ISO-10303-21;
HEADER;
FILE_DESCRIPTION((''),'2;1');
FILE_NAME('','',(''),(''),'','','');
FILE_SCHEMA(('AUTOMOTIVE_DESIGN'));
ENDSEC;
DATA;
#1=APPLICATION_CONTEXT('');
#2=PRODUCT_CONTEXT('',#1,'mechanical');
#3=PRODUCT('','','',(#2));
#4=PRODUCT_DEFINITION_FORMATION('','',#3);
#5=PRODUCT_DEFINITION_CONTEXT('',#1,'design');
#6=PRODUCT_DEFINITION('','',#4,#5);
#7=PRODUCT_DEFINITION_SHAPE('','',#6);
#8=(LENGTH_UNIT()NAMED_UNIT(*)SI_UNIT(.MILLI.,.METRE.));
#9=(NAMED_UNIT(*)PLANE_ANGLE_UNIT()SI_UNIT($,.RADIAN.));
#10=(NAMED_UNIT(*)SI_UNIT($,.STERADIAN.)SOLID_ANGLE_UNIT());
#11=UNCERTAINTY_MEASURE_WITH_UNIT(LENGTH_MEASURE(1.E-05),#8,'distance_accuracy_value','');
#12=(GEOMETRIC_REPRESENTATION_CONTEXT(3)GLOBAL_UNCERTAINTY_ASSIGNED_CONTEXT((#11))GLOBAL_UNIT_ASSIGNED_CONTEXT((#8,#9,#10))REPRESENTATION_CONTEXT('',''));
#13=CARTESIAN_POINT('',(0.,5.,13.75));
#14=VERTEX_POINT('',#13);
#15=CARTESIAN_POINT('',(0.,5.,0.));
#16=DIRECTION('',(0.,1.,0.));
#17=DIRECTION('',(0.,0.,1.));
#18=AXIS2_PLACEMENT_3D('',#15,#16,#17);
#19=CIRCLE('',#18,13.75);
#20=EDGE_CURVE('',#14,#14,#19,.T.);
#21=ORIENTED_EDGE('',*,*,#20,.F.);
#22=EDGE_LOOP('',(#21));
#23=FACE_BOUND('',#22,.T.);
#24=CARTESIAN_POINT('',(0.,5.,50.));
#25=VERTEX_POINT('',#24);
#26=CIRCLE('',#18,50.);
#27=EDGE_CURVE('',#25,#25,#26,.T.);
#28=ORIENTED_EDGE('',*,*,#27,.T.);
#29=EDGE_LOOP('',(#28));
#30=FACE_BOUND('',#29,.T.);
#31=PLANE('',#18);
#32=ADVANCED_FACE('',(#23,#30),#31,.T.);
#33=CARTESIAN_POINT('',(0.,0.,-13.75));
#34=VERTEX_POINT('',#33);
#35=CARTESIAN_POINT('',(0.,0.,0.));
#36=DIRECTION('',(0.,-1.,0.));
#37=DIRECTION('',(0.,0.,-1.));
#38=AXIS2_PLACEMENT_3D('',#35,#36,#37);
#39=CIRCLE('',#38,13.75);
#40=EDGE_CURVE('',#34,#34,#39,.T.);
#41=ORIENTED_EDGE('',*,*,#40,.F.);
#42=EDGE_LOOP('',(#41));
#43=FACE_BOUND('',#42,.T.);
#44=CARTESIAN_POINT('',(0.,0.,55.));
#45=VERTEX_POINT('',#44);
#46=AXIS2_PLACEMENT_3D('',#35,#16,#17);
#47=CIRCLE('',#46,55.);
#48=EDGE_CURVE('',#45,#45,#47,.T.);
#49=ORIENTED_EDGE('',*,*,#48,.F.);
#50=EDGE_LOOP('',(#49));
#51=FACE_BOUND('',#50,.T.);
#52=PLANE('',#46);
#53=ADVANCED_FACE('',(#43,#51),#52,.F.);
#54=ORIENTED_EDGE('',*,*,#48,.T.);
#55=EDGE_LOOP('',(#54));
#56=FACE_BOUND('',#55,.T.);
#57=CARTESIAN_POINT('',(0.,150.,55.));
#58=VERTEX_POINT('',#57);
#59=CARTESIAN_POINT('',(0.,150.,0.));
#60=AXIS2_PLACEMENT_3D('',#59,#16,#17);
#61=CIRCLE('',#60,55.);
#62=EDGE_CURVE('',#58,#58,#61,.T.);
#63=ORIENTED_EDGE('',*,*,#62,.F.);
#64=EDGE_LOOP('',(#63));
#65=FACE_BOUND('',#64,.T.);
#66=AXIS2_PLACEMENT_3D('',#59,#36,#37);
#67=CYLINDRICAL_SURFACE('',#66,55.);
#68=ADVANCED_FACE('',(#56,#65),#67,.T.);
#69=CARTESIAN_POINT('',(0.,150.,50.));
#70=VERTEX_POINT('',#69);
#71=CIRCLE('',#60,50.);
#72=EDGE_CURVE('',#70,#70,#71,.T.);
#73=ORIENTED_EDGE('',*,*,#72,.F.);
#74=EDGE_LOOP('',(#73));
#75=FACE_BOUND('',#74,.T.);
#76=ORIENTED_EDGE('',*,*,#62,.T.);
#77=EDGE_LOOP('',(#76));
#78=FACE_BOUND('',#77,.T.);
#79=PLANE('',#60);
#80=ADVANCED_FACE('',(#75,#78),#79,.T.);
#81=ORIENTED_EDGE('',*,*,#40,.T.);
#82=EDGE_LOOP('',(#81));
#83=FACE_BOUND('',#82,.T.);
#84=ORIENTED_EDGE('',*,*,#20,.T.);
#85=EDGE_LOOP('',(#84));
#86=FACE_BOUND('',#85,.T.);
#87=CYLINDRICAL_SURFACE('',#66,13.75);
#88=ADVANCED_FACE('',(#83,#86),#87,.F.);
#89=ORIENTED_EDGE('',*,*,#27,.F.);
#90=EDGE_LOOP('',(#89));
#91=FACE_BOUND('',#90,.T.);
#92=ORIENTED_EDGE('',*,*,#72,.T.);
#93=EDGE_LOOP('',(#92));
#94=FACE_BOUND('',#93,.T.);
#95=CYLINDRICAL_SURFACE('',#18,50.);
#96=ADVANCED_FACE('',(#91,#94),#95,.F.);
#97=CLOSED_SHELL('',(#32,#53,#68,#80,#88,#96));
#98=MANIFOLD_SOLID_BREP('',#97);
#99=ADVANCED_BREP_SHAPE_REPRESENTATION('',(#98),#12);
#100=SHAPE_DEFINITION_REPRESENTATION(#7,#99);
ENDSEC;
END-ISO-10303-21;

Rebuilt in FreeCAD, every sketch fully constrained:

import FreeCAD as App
import Part
import Sketcher
Q = App.Units.Quantity

doc = App.newDocument("Part")
params = doc.addObject("Spreadsheet::Sheet", "Params")
for row, (alias, value) in enumerate([
    ("sketch1_diameter", "110 mm"),
    ("pad1_length", "150 mm"),
    ("sketch2_diameter", "100 mm"),
    ("pocket1_length", "145 mm"),
    ("sketch3_diameter", "27.5 mm"),
], start=1):
    params.set(f"A{row}", alias)
    params.set(f"B{row}", "=" + value)
    params.setAlias(f"B{row}", alias)

body = doc.addObject("PartDesign::Body", "Body")

# Sketch on XZ plane
sketch1 = doc.addObject("Sketcher::SketchObject", "Sketch")
body.addObject(sketch1)
sketch1.AttachmentSupport = (doc.XZ_Plane, [""])
sketch1.MapMode = "FlatFace"
sketch1.addGeometry(Part.Circle(App.Vector(0, 0, 0), App.Vector(0, 0, 1), 55), False)
sketch1.addConstraint(Sketcher.Constraint("Coincident", 0, 3, -1, 1))
sketch1.addConstraint(Sketcher.Constraint("Diameter", 0, Q("110 mm")))
sketch1.setExpression("Constraints[1]", "Params.sketch1_diameter")
pad1 = doc.addObject("PartDesign::Pad", "Pad")
body.addObject(pad1)
pad1.Profile = sketch1
pad1.setExpression("Length", "Params.pad1_length")
pad1.Reversed = True

# Sketch on XZ plane
sketch2 = doc.addObject("Sketcher::SketchObject", "Sketch001")
body.addObject(sketch2)
sketch2.AttachmentSupport = (doc.XZ_Plane, [""])
sketch2.MapMode = "FlatFace"
sketch2.AttachmentOffset = App.Placement(App.Vector(0, 0, -150), App.Rotation())
sketch2.addGeometry(Part.Circle(App.Vector(0, 0, 0), App.Vector(0, 0, 1), 50), False)
sketch2.addConstraint(Sketcher.Constraint("Coincident", 0, 3, -1, 1))
sketch2.addConstraint(Sketcher.Constraint("Diameter", 0, Q("100 mm")))
sketch2.setExpression("Constraints[1]", "Params.sketch2_diameter")
pocket1 = doc.addObject("PartDesign::Pocket", "Pocket")
body.addObject(pocket1)
pocket1.Profile = sketch2
pocket1.setExpression("Length", "Params.pocket1_length")
pocket1.Reversed = True

# Sketch on XZ plane
sketch3 = doc.addObject("Sketcher::SketchObject", "Sketch002")
body.addObject(sketch3)
sketch3.AttachmentSupport = (doc.XZ_Plane, [""])
sketch3.MapMode = "FlatFace"
sketch3.addGeometry(Part.Circle(App.Vector(0, 0, 0), App.Vector(0, 0, 1), 13.75), False)
sketch3.addConstraint(Sketcher.Constraint("Coincident", 0, 3, -1, 1))
sketch3.addConstraint(Sketcher.Constraint("Diameter", 0, Q("27.5 mm")))
sketch3.setExpression("Constraints[1]", "Params.sketch3_diameter")
pocket2 = doc.addObject("PartDesign::Pocket", "Pocket001")
body.addObject(pocket2)
pocket2.Profile = sketch3
pocket2.Type = "ThroughAll"

doc.recompute()
